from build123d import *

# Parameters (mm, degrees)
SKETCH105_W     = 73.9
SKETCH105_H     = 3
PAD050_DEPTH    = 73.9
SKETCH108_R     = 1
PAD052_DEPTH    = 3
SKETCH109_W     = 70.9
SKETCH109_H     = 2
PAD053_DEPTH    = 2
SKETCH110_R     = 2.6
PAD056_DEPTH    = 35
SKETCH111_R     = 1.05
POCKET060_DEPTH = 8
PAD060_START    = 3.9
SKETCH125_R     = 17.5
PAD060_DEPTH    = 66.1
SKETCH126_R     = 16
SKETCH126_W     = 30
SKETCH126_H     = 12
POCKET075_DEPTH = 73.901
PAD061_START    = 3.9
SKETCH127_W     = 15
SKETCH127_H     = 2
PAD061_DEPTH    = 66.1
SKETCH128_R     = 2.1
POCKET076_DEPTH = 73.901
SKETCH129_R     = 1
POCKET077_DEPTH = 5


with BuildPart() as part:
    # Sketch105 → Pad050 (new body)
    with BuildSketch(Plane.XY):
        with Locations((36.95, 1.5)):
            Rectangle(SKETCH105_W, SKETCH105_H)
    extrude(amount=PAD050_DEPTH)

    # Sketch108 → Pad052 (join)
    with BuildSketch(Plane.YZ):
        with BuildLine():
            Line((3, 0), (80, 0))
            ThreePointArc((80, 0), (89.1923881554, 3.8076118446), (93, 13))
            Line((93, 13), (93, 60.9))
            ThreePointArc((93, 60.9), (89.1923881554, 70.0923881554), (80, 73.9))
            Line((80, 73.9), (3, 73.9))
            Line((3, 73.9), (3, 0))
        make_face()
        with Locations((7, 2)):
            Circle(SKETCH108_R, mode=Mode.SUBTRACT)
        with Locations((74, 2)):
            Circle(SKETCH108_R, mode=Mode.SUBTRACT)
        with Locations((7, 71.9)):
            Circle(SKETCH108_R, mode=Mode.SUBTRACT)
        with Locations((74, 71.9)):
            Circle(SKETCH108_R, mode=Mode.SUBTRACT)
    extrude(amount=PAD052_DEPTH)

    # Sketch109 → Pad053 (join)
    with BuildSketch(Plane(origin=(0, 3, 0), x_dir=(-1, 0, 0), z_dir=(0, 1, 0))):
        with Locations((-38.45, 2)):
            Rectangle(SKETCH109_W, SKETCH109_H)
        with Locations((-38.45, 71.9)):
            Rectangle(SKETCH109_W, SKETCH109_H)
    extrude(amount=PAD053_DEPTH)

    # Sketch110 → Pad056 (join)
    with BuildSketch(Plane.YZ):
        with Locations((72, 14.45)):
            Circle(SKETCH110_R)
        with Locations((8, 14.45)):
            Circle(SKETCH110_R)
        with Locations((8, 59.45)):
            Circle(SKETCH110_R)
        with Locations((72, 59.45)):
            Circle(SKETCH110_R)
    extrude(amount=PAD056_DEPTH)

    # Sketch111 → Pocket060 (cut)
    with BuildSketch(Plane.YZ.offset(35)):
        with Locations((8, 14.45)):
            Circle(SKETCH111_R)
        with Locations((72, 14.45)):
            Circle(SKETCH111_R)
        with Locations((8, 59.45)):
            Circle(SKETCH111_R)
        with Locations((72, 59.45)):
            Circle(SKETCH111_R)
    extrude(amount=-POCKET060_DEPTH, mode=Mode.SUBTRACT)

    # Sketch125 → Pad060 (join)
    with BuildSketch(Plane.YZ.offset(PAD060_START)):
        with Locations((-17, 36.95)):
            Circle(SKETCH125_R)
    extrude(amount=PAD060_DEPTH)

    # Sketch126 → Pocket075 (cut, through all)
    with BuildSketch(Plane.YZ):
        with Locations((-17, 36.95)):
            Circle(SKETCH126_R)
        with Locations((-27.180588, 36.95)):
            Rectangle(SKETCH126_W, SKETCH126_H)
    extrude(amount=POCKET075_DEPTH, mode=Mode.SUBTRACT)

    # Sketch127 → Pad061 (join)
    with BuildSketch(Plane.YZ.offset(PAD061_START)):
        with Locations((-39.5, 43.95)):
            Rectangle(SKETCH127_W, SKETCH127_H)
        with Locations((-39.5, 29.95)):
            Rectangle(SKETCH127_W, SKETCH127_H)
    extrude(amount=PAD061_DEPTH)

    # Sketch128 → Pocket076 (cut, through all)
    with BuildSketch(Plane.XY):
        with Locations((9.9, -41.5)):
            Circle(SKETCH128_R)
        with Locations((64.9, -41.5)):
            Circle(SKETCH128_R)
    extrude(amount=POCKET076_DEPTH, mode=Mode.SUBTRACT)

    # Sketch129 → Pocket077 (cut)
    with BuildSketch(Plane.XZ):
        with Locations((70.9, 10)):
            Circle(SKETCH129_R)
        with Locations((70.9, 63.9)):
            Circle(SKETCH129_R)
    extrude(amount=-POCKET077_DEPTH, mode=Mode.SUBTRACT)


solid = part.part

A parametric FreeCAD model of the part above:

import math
import FreeCAD as App
import Part
import Sketcher
from FreeCAD import Vector
Q = App.Units.Quantity


def add_polygon(sketch, points):
    """Adds a closed chain of lines whose ends are joined by coincident constraints."""
    first, n = sketch.GeometryCount, len(points)
    for a, b in zip(points, points[1:] + points[:1]):
        sketch.addGeometry(Part.LineSegment(App.Vector(*a, 0), App.Vector(*b, 0)), False)
    for i in range(n):
        sketch.addConstraint(Sketcher.Constraint("Coincident", first + i, 2, first + (i + 1) % n, 1))

doc = App.newDocument("Part")
body = doc.addObject("PartDesign::Body", "Body")

# Sketch on XY plane
sketch1 = doc.addObject("Sketcher::SketchObject", "Sketch")
body.addObject(sketch1)
sketch1.AttachmentSupport = (doc.XY_Plane, [""])
sketch1.MapMode = "FlatFace"
add_polygon(sketch1, [(0, 3), (0, 0), (73.9, 0), (73.9, 3)])  # lines 0-3
sketch1.addConstraint([
    Sketcher.Constraint("Vertical", 0),
    Sketcher.Constraint("Horizontal", 1),
    Sketcher.Constraint("Vertical", 2),
    Sketcher.Constraint("Horizontal", 3),
    Sketcher.Constraint("Coincident", 0, 2, -1, 1),
    Sketcher.Constraint("DistanceY", 0, 2, 0, 1, Q("3 mm")),
    Sketcher.Constraint("DistanceX", 1, 1, 1, 2, Q("73.9 mm")),
])
pad1 = doc.addObject("PartDesign::Pad", "Pad")
body.addObject(pad1)
pad1.Profile = sketch1
pad1.Length = 73.9

# Sketch on YZ plane
sketch2 = doc.addObject("Sketcher::SketchObject", "Sketch001")
body.addObject(sketch2)
sketch2.AttachmentSupport = (doc.YZ_Plane, [""])
sketch2.MapMode = "FlatFace"
sketch2.addGeometry([
    Part.LineSegment(Vector(3, 0, 0), Vector(80, 0, 0)),  # 0
    Part.ArcOfCircle(Part.Circle(Vector(80, 13, 0), Vector(0, 0, 1), 13), math.radians(-90), math.radians(0)),  # 1
    Part.LineSegment(Vector(93, 13, 0), Vector(93, 60.9, 0)),  # 2
    Part.ArcOfCircle(Part.Circle(Vector(80, 60.9, 0), Vector(0, 0, 1), 13), math.radians(0), math.radians(90)),  # 3
    Part.LineSegment(Vector(80, 73.9, 0), Vector(3, 73.9, 0)),  # 4
    Part.LineSegment(Vector(3, 73.9, 0), Vector(3, 0, 0)),  # 5
    Part.Circle(Vector(7, 2, 0), Vector(0, 0, 1), 1),  # 6
    Part.Circle(Vector(74, 2, 0), Vector(0, 0, 1), 1),  # 7
    Part.Circle(Vector(7, 71.9, 0), Vector(0, 0, 1), 1),  # 8
    Part.Circle(Vector(74, 71.9, 0), Vector(0, 0, 1), 1),  # 9
], False)
sketch2.addConstraint([
    Sketcher.Constraint("Tangent", 0, 2, 1, 1),
    Sketcher.Constraint("Tangent", 1, 2, 2, 1),
    Sketcher.Constraint("Tangent", 2, 2, 3, 1),
    Sketcher.Constraint("Tangent", 3, 2, 4, 1),
    Sketcher.Constraint("Coincident", 4, 2, 5, 1),
    Sketcher.Constraint("Coincident", 5, 2, 0, 1),
    Sketcher.Constraint("Horizontal", 0),
    Sketcher.Constraint("Vertical", 2),
    Sketcher.Constraint("Horizontal", 4),
    Sketcher.Constraint("Vertical", 5),
    Sketcher.Constraint("Equal", 1, 3),
    Sketcher.Constraint("Equal", 6, 7),
    Sketcher.Constraint("Equal", 7, 8),
    Sketcher.Constraint("Equal", 8, 9),
    Sketcher.Constraint("PointOnObject", 0, 2, -1),
    Sketcher.Constraint("Horizontal", 6, 3, 7, 3),
    Sketcher.Constraint("Horizontal", 8, 3, 9, 3),
    Sketcher.Constraint("Vertical", 6, 3, 8, 3),
    Sketcher.Constraint("Vertical", 7, 3, 9, 3),
    Sketcher.Constraint("Diameter", 6, Q("2 mm")),
    Sketcher.Constraint("Radius", 1, Q("13 mm")),
    Sketcher.Constraint("DistanceX", 0, 1, 0, 2, Q("77 mm")),
    Sketcher.Constraint("DistanceY", 2, 1, 2, 2, Q("47.9 mm")),
    Sketcher.Constraint("DistanceX", -1, 1, 1, 3, Q("80 mm")),
    Sketcher.Constraint("DistanceX", -1, 1, 6, 3, Q("7 mm")),
    Sketcher.Constraint("DistanceY", -1, 1, 6, 3, Q("2 mm")),
    Sketcher.Constraint("DistanceX", -1, 1, 7, 3, Q("74 mm")),
    Sketcher.Constraint("DistanceY", 3, 3, 8, 3, Q("11 mm")),
])
pad2 = doc.addObject("PartDesign::Pad", "Pad001")
body.addObject(pad2)
pad2.Profile = sketch2
pad2.Length = 3

# Sketch on XZ plane
sketch3 = doc.addObject("Sketcher::SketchObject", "Sketch002")
body.addObject(sketch3)
sketch3.AttachmentSupport = (doc.XZ_Plane, [""])
sketch3.MapMode = "FlatFace"
sketch3.AttachmentOffset = App.Placement(Vector(0, 0, -3), App.Rotation())
add_polygon(sketch3, [(73.9, 3), (73.9, 1), (3, 1), (3, 3)])  # lines 0-3
add_polygon(sketch3, [(73.9, 72.9), (73.9, 70.9), (3, 70.9), (3, 72.9)])  # lines 4-7
sketch3.addConstraint([
    Sketcher.Constraint("Vertical", 0),
    Sketcher.Constraint("Horizontal", 1),
    Sketcher.Constraint("Vertical", 2),
    Sketcher.Constraint("Horizontal", 3),
    Sketcher.Constraint("Vertical", 4),
    Sketcher.Constraint("Horizontal", 5),
    Sketcher.Constraint("Vertical", 6),
    Sketcher.Constraint("Horizontal", 7),
    Sketcher.Constraint("Vertical", 3, 2, 4, 2),
    Sketcher.Constraint("Vertical", 2, 2, 5, 2),
    Sketcher.Constraint("Equal", 2, 4),
    Sketcher.Constraint("DistanceY", 0, 2, 0, 1, Q("2 mm")),
    Sketcher.Constraint("DistanceX", 1, 2, 1, 1, Q("70.9 mm")),
    Sketcher.Constraint("DistanceY", -1, 1, 0, 2, Q("1 mm")),
    Sketcher.Constraint("DistanceX", -1, 1, 1, 2, Q("3 mm")),
    Sketcher.Constraint("DistanceY", -1, 1, 4, 2, Q("70.9 mm")),
])
pad3 = doc.addObject("PartDesign::Pad", "Pad002")
body.addObject(pad3)
pad3.Profile = sketch3
pad3.Length = 2
pad3.Reversed = True

# Sketch on YZ plane
sketch4 = doc.addObject("Sketcher::SketchObject", "Sketch003")
body.addObject(sketch4)
sketch4.AttachmentSupport = (doc.YZ_Plane, [""])
sketch4.MapMode = "FlatFace"
sketch4.addGeometry([
    Part.Circle(Vector(72, 14.4, 0), Vector(0, 0, 1), 2.6),
    Part.Circle(Vector(8, 14.4, 0), Vector(0, 0, 1), 2.6),
    Part.Circle(Vector(8, 59.5, 0), Vector(0, 0, 1), 2.6),
    Part.Circle(Vector(72, 59.5, 0), Vector(0, 0, 1), 2.6),
], False)
sketch4.addConstraint([
    Sketcher.Constraint("Equal", 0, 1),
    Sketcher.Constraint("Equal", 1, 2),
    Sketcher.Constraint("Equal", 2, 3),
    Sketcher.Constraint("Horizontal", 0, 3, 1, 3),
    Sketcher.Constraint("Horizontal", 2, 3, 3, 3),
    Sketcher.Constraint("Vertical", 1, 3, 2, 3),
    Sketcher.Constraint("Vertical", 0, 3, 3, 3),
    Sketcher.Constraint("Diameter", 0, Q("5.2 mm")),
    Sketcher.Constraint("DistanceX", -1, 1, 0, 3, Q("72 mm")),
    Sketcher.Constraint("DistanceX", -1, 1, 1, 3, Q("8 mm")),
    Sketcher.Constraint("DistanceY", 1, 3, 2, 3, Q("45 mm")),
    Sketcher.Constraint("DistanceY", -1, 1, 0, 3, Q("14.45 mm")),
])
pad4 = doc.addObject("PartDesign::Pad", "Pad003")
body.addObject(pad4)
pad4.Profile = sketch4
pad4.Length = 35

# Sketch on YZ plane
sketch5 = doc.addObject("Sketcher::SketchObject", "Sketch004")
body.addObject(sketch5)
sketch5.AttachmentSupport = (doc.YZ_Plane, [""])
sketch5.MapMode = "FlatFace"
sketch5.AttachmentOffset = App.Placement(Vector(0, 0, 35), App.Rotation())
sketch5.addGeometry([
    Part.Circle(Vector(8, 14.4, 0), Vector(0, 0, 1), 1.1),
    Part.Circle(Vector(72, 14.4, 0), Vector(0, 0, 1), 1.1),
    Part.Circle(Vector(8, 59.5, 0), Vector(0, 0, 1), 1.1),
    Part.Circle(Vector(72, 59.5, 0), Vector(0, 0, 1), 1.1),
], False)
sketch5.addConstraint([
    Sketcher.Constraint("Equal", 0, 1),
    Sketcher.Constraint("Equal", 1, 2),
    Sketcher.Constraint("Equal", 2, 3),
    Sketcher.Constraint("Horizontal", 0, 3, 1, 3),
    Sketcher.Constraint("Horizontal", 2, 3, 3, 3),
    Sketcher.Constraint("Vertical", 0, 3, 2, 3),
    Sketcher.Constraint("Vertical", 1, 3, 3, 3),
    Sketcher.Constraint("Diameter", 0, Q("2.1 mm")),
    Sketcher.Constraint("DistanceX", -1, 1, 0, 3, Q("8 mm")),
    Sketcher.Constraint("DistanceX", -1, 1, 1, 3, Q("72 mm")),
    Sketcher.Constraint("DistanceY", 0, 3, 2, 3, Q("45 mm")),
    Sketcher.Constraint("DistanceY", -1, 1, 0, 3, Q("14.45 mm")),
])
pocket1 = doc.addObject("PartDesign::Pocket", "Pocket")
body.addObject(pocket1)
pocket1.Profile = sketch5
pocket1.Length = 8

# Sketch on YZ plane
sketch6 = doc.addObject("Sketcher::SketchObject", "Sketch005")
body.addObject(sketch6)
sketch6.AttachmentSupport = (doc.YZ_Plane, [""])
sketch6.MapMode = "FlatFace"
sketch6.AttachmentOffset = App.Placement(Vector(0, 0, 3.9), App.Rotation())
sketch6.addGeometry(Part.Circle(Vector(-17, 37, 0), Vector(0, 0, 1), 18), False)
sketch6.addConstraint([
    Sketcher.Constraint("Diameter", 0, Q("35 mm")),
    Sketcher.Constraint("DistanceX", 0, 3, -1, 1, Q("17 mm")),
    Sketcher.Constraint("DistanceY", -1, 1, 0, 3, Q("36.95 mm")),
])
pad5 = doc.addObject("PartDesign::Pad", "Pad004")
body.addObject(pad5)
pad5.Profile = sketch6
pad5.Length = 66.1

# Sketch on YZ plane
sketch7 = doc.addObject("Sketcher::SketchObject", "Sketch006")
body.addObject(sketch7)
sketch7.AttachmentSupport = (doc.YZ_Plane, [""])
sketch7.MapMode = "FlatFace"
sketch7.addGeometry([
    Part.ArcOfCircle(Part.Circle(Vector(-17, 37, 0), Vector(0, 0, 1), 16), math.radians(-158), math.radians(158)),
    Part.LineSegment(Vector(-32, 43, 0), Vector(-42, 43, 0)),
    Part.LineSegment(Vector(-42, 43, 0), Vector(-42, 31, 0)),
    Part.LineSegment(Vector(-42, 31, 0), Vector(-32, 31, 0)),
], False)
sketch7.addConstraint([
    Sketcher.Constraint("Coincident", 0, 2, 1, 1),
    Sketcher.Constraint("Coincident", 1, 2, 2, 1),
    Sketcher.Constraint("Coincident", 2, 2, 3, 1),
    Sketcher.Constraint("Coincident", 3, 2, 0, 1),
    Sketcher.Constraint("Horizontal", 1),
    Sketcher.Constraint("Vertical", 2),
    Sketcher.Constraint("Horizontal", 3),
    Sketcher.Constraint("Vertical", 0, 2, 3, 2),
    Sketcher.Constraint("Radius", 0, Q("16 mm")),
    Sketcher.Constraint("DistanceY", 2, 2, 2, 1, Q("12 mm")),
    Sketcher.Constraint("DistanceX", 0, 3, -1, 1, Q("17 mm")),
    Sketcher.Constraint("DistanceY", -1, 1, 0, 3, Q("36.95 mm")),
    Sketcher.Constraint("DistanceX", 1, 2, 1, 1, Q("10.348191 mm")),
])
pocket2 = doc.addObject("PartDesign::Pocket", "Pocket001")
body.addObject(pocket2)
pocket2.Profile = sketch7
pocket2.Type = "ThroughAll"
pocket2.Reversed = True

# Sketch on YZ plane
sketch8 = doc.addObject("Sketcher::SketchObject", "Sketch007")
body.addObject(sketch8)
sketch8.AttachmentSupport = (doc.YZ_Plane, [""])
sketch8.MapMode = "FlatFace"
sketch8.AttachmentOffset = App.Placement(Vector(0, 0, 3.9), App.Rotation())
add_polygon(sketch8, [(-47, 45), (-47, 43), (-32, 43), (-32, 45)])  # lines 0-3
add_polygon(sketch8, [(-47, 30.9), (-47, 28.9), (-32, 28.9), (-32, 30.9)])  # lines 4-7
sketch8.addConstraint([
    Sketcher.Constraint("Vertical", 0),
    Sketcher.Constraint("Horizontal", 1),
    Sketcher.Constraint("Vertical", 2),
    Sketcher.Constraint("Horizontal", 3),
    Sketcher.Constraint("Vertical", 4),
    Sketcher.Constraint("Horizontal", 5),
    Sketcher.Constraint("Vertical", 6),
    Sketcher.Constraint("Horizontal", 7),
    Sketcher.Constraint("Vertical", 3, 2, 4, 2),
    Sketcher.Constraint("Vertical", 2, 2, 5, 2),
    Sketcher.Constraint("Equal", 2, 4),
    Sketcher.Constraint("DistanceX", 1, 1, 1, 2, Q("15 mm")),
    Sketcher.Constraint("DistanceY", 0, 2, 0, 1, Q("2 mm")),
    Sketcher.Constraint("DistanceX", 0, 2, -1, 1, Q("47 mm")),
    Sketcher.Constraint("DistanceY", 4, 2, 0, 2, Q("14 mm")),
    Sketcher.Constraint("DistanceY", -1, 1, 0, 2, Q("42.95 mm")),
])
pad6 = doc.addObject("PartDesign::Pad", "Pad005")
body.addObject(pad6)
pad6.Profile = sketch8
pad6.Length = 66.1

# Sketch on XY plane
sketch9 = doc.addObject("Sketcher::SketchObject", "Sketch008")
body.addObject(sketch9)
sketch9.AttachmentSupport = (doc.XY_Plane, [""])
sketch9.MapMode = "FlatFace"
sketch9.addGeometry([
    Part.Circle(Vector(9.9, -41.5, 0), Vector(0, 0, 1), 2.1),
    Part.Circle(Vector(64.9, -41.5, 0), Vector(0, 0, 1), 2.1),
], False)
sketch9.addConstraint([
    Sketcher.Constraint("Equal", 0, 1),
    Sketcher.Constraint("Horizontal", 0, 3, 1, 3),
    Sketcher.Constraint("Diameter", 0, Q("4.2 mm")),
    Sketcher.Constraint("DistanceX", 0, 3, 1, 3, Q("55 mm")),
    Sketcher.Constraint("DistanceX", -1, 1, 0, 3, Q("9.9 mm")),
    Sketcher.Constraint("DistanceY", 0, 3, -1, 1, Q("41.5 mm")),
])
pocket3 = doc.addObject("PartDesign::Pocket", "Pocket002")
body.addObject(pocket3)
pocket3.Profile = sketch9
pocket3.Type = "ThroughAll"
pocket3.Reversed = True

# Sketch on XZ plane
sketch10 = doc.addObject("Sketcher::SketchObject", "Sketch009")
body.addObject(sketch10)
sketch10.AttachmentSupport = (doc.XZ_Plane, [""])
sketch10.MapMode = "FlatFace"
sketch10.addGeometry([
    Part.Circle(Vector(70.9, 10, 0), Vector(0, 0, 1), 1),
    Part.Circle(Vector(70.9, 63.9, 0), Vector(0, 0, 1), 1),
], False)
sketch10.addConstraint([
    Sketcher.Constraint("Equal", 0, 1),
    Sketcher.Constraint("Vertical", 0, 3, 1, 3),
    Sketcher.Constraint("Diameter", 0, Q("2 mm")),
    Sketcher.Constraint("DistanceY", -1, 1, 0, 3, Q("10 mm")),
    Sketcher.Constraint("DistanceX", -1, 1, 0, 3, Q("70.9 mm")),
    Sketcher.Constraint("DistanceY", -1, 1, 1, 3, Q("63.9 mm")),
])
pocket4 = doc.addObject("PartDesign::Pocket", "Pocket003")
body.addObject(pocket4)
pocket4.Profile = sketch10
pocket4.Length = 5

doc.recompute()
